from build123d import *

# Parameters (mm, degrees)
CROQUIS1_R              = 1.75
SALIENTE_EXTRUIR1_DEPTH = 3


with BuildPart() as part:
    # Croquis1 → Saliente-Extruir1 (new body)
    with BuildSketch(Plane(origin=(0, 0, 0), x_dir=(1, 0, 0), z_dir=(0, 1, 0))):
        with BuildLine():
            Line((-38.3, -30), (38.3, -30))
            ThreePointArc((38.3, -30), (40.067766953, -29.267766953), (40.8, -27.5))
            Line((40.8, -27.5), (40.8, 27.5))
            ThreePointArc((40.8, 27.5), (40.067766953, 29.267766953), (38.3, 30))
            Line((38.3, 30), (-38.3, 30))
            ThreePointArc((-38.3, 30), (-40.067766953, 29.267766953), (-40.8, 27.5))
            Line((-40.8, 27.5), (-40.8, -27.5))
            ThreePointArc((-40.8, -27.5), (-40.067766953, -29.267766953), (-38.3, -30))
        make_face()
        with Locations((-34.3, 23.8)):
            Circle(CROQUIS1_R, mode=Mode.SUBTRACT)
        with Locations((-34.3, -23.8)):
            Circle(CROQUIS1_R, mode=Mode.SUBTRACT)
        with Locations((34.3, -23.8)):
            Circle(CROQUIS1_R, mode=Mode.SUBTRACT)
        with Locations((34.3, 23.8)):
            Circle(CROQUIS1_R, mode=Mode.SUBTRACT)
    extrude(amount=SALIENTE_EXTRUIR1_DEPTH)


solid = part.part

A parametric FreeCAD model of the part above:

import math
import FreeCAD as App
import Part
import Sketcher

V = App.Vector

doc = App.newDocument("Part")
body = doc.addObject("PartDesign::Body", "Body")

# Sketch on XZ plane
sketch1 = doc.addObject("Sketcher::SketchObject", "Sketch")
body.addObject(sketch1)
sketch1.AttachmentSupport = (doc.XZ_Plane, [""])
sketch1.MapMode = "FlatFace"
sketch1.addGeometry(Part.LineSegment(V(-38.3, 30, 0), V(38.3, 30, 0)), False)
sketch1.addGeometry(Part.ArcOfCircle(Part.Circle(V(38.3, 27.5, 0), V(0, 0, 1), 2.5), math.radians(0), math.radians(90)), False)
sketch1.addGeometry(Part.LineSegment(V(40.8, 27.5, 0), V(40.8, -27.5, 0)), False)
sketch1.addGeometry(Part.ArcOfCircle(Part.Circle(V(38.3, -27.5, 0), V(0, 0, 1), 2.5), math.radians(-90), math.radians(0)), False)
sketch1.addGeometry(Part.LineSegment(V(38.3, -30, 0), V(-38.3, -30, 0)), False)
sketch1.addGeometry(Part.ArcOfCircle(Part.Circle(V(-38.3, -27.5, 0), V(0, 0, 1), 2.5), math.radians(180), math.radians(270)), False)
sketch1.addGeometry(Part.LineSegment(V(-40.8, -27.5, 0), V(-40.8, 27.5, 0)), False)
sketch1.addGeometry(Part.ArcOfCircle(Part.Circle(V(-38.3, 27.5, 0), V(0, 0, 1), 2.5), math.radians(90), math.radians(180)), False)
sketch1.addGeometry(Part.Circle(V(-34.3, 23.8, 0), V(0, 0, 1), 1.75), False)
sketch1.addGeometry(Part.Circle(V(34.3, 23.8, 0), V(0, 0, 1), 1.75), False)
sketch1.addGeometry(Part.Circle(V(-34.3, -23.8, 0), V(0, 0, 1), 1.75), False)
sketch1.addGeometry(Part.Circle(V(34.3, -23.8, 0), V(0, 0, 1), 1.75), False)
sketch1.addConstraint(Sketcher.Constraint("Tangent", 0, 2, 1, 2))
sketch1.addConstraint(Sketcher.Constraint("Tangent", 1, 1, 2, 1))
sketch1.addConstraint(Sketcher.Constraint("Tangent", 2, 2, 3, 2))
sketch1.addConstraint(Sketcher.Constraint("Tangent", 3, 1, 4, 1))
sketch1.addConstraint(Sketcher.Constraint("Tangent", 4, 2, 5, 2))
sketch1.addConstraint(Sketcher.Constraint("Tangent", 5, 1, 6, 1))
sketch1.addConstraint(Sketcher.Constraint("Tangent", 6, 2, 7, 2))
sketch1.addConstraint(Sketcher.Constraint("Tangent", 7, 1, 0, 1))
sketch1.addConstraint(Sketcher.Constraint("Horizontal", 0))
sketch1.addConstraint(Sketcher.Constraint("Vertical", 2))
sketch1.addConstraint(Sketcher.Constraint("Horizontal", 4))
sketch1.addConstraint(Sketcher.Constraint("Vertical", 6))
sketch1.addConstraint(Sketcher.Constraint("Equal", 1, 3))
sketch1.addConstraint(Sketcher.Constraint("Equal", 3, 5))
sketch1.addConstraint(Sketcher.Constraint("Equal", 5, 7))
sketch1.addConstraint(Sketcher.Constraint("Equal", 8, 9))
sketch1.addConstraint(Sketcher.Constraint("Equal", 9, 10))
sketch1.addConstraint(Sketcher.Constraint("Equal", 10, 11))
sketch1.addConstraint(Sketcher.Constraint("Symmetric", 1, 3, 5, 3, -1, 1))
sketch1.addConstraint(Sketcher.Constraint("Symmetric", 9, 3, 10, 3, -1, 1))
sketch1.addConstraint(Sketcher.Constraint("Symmetric", 8, 3, 11, 3, -1, 1))
sketch1.addConstraint(Sketcher.Constraint("Symmetric", 8, 3, 9, 3, -2))
sketch1.addConstraint(Sketcher.Constraint("Diameter", 8, 3.5))
sketch1.addConstraint(Sketcher.Constraint("Radius", 1, 2.5))
sketch1.addConstraint(Sketcher.Constraint("DistanceY", 2, 2, 2, 1, 55.0))
sketch1.addConstraint(Sketcher.Constraint("DistanceX", 0, 1, 0, 2, 76.6))
sketch1.addConstraint(Sketcher.Constraint("DistanceX", 7, 3, 8, 3, 4.0))
sketch1.addConstraint(Sketcher.Constraint("DistanceY", -1, 1, 8, 3, 23.8))
pad1 = doc.addObject("PartDesign::Pad", "Pad")
body.addObject(pad1)
pad1.Profile = sketch1
pad1.Length = 3
pad1.Reversed = True

doc.recompute()
